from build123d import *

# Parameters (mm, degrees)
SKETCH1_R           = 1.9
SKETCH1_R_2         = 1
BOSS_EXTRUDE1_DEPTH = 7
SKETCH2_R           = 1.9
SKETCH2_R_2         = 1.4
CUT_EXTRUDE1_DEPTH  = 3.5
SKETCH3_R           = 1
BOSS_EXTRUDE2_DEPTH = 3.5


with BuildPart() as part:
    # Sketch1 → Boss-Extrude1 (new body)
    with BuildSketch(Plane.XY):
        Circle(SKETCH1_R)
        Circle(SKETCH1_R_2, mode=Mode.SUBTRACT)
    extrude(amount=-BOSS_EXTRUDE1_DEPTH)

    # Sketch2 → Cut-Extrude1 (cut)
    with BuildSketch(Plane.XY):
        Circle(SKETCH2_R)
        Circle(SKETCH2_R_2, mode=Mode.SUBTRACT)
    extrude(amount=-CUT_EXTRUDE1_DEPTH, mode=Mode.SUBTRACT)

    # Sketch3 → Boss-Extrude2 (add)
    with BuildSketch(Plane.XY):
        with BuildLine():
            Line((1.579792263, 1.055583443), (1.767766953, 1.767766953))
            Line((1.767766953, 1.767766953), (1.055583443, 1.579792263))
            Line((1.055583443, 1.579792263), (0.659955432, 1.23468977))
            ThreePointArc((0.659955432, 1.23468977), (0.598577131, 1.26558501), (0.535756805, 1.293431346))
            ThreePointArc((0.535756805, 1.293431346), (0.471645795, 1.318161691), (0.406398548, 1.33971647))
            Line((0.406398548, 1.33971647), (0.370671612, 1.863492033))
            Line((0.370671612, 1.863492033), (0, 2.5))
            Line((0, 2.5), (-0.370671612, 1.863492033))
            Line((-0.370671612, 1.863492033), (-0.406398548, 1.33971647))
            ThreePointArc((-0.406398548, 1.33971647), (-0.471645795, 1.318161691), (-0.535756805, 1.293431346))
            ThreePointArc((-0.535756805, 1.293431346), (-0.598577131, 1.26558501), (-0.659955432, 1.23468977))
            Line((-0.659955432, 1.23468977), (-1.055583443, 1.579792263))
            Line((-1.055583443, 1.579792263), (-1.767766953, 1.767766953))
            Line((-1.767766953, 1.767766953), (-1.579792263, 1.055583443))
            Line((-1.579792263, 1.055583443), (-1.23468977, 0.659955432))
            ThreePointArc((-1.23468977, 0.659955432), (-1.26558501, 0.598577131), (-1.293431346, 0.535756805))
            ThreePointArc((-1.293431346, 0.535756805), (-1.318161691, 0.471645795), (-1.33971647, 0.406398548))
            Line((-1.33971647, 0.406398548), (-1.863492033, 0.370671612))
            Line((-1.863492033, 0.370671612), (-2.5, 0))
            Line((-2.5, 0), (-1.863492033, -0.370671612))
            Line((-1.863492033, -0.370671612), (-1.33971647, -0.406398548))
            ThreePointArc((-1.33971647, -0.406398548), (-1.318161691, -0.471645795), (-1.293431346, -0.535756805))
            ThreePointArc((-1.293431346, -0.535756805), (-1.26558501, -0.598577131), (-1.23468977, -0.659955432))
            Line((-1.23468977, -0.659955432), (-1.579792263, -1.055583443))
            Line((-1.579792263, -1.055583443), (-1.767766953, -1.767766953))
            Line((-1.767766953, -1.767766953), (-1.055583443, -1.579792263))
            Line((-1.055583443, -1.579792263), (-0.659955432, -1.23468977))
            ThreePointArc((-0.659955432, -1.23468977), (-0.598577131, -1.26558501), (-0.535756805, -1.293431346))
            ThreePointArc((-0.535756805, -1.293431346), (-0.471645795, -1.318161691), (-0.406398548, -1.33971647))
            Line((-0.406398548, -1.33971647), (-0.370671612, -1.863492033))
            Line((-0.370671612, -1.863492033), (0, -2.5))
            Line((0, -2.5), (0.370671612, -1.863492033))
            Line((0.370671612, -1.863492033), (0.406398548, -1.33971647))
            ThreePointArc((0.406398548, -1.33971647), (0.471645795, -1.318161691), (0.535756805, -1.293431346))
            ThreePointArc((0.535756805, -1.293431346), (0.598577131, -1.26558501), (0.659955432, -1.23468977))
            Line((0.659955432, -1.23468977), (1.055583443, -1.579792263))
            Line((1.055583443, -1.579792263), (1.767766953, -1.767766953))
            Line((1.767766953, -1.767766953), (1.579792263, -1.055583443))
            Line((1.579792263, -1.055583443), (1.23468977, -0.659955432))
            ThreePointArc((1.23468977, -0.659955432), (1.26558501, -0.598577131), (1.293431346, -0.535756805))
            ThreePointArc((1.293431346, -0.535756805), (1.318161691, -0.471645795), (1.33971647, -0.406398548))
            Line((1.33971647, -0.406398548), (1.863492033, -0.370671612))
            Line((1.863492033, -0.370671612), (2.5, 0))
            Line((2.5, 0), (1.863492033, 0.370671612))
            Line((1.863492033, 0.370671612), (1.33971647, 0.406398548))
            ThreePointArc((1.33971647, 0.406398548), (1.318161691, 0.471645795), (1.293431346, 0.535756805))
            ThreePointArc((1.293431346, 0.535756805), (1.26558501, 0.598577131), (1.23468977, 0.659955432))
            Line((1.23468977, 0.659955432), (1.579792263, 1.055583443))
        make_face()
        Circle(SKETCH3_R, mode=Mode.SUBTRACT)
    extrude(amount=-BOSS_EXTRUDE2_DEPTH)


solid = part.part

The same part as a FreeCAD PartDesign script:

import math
import FreeCAD as App
import Part
import Sketcher
Q = App.Units.Quantity

doc = App.newDocument("Part")
body = doc.addObject("PartDesign::Body", "Body")

# Sketch on XY plane
sketch1 = body.newObject("Sketcher::SketchObject", "Sketch")
sketch1.AttachmentSupport = (doc.getObject("XY_Plane"), [""])
sketch1.MapMode = "FlatFace"
sketch1.addGeometry(Part.Circle(App.Vector(0, 0, 0), App.Vector(0, 0, 1), 1.9), False)
sketch1.addGeometry(Part.Circle(App.Vector(0, 0, 0), App.Vector(0, 0, 1), 1), False)
sketch1.addConstraint(Sketcher.Constraint("Coincident", 0, 3, -1, 1))
sketch1.addConstraint(Sketcher.Constraint("Coincident", 1, 3, -1, 1))
sketch1.addConstraint(Sketcher.Constraint("Diameter", 1, Q("2 mm")))
sketch1.addConstraint(Sketcher.Constraint("Diameter", 0, Q("3.8 mm")))
pad1 = body.newObject("PartDesign::Pad", "Pad")
pad1.Profile = sketch1
pad1.Length = 7
pad1.Reversed = True

# Sketch on XY plane
sketch2 = body.newObject("Sketcher::SketchObject", "Sketch001")
sketch2.AttachmentSupport = (doc.getObject("XY_Plane"), [""])
sketch2.MapMode = "FlatFace"
sketch2.addGeometry(Part.Circle(App.Vector(0, 0, 0), App.Vector(0, 0, 1), 1.9), False)
sketch2.addGeometry(Part.Circle(App.Vector(0, 0, 0), App.Vector(0, 0, 1), 1.4), False)
sketch2.addConstraint(Sketcher.Constraint("Coincident", 0, 3, -1, 1))
sketch2.addConstraint(Sketcher.Constraint("Coincident", 1, 3, -1, 1))
sketch2.addConstraint(Sketcher.Constraint("Diameter", 0, Q("3.8 mm")))
sketch2.addConstraint(Sketcher.Constraint("Diameter", 1, Q("2.8 mm")))
pocket1 = body.newObject("PartDesign::Pocket", "Pocket")
pocket1.Profile = sketch2
pocket1.Length = 3.5

# Sketch on XY plane
sketch3 = body.newObject("Sketcher::SketchObject", "Sketch002")
sketch3.AttachmentSupport = (doc.getObject("XY_Plane"), [""])
sketch3.MapMode = "FlatFace"
sketch3.addGeometry(Part.LineSegment(App.Vector(1.58, 1.06, 0), App.Vector(1.77, 1.77, 0)), False)
sketch3.addGeometry(Part.LineSegment(App.Vector(1.77, 1.77, 0), App.Vector(1.06, 1.58, 0)), False)
sketch3.addGeometry(Part.LineSegment(App.Vector(1.06, 1.58, 0), App.Vector(0.66, 1.23, 0)), False)
sketch3.addGeometry(Part.ArcOfCircle(Part.Circle(App.Vector(0, 0, 0), App.Vector(0, 0, 1), 1.4), math.radians(61.88), math.radians(67.5)), False)
sketch3.addGeometry(Part.ArcOfCircle(Part.Circle(App.Vector(0, 0, 0), App.Vector(0, 0, 1), 1.4), math.radians(67.5), math.radians(73.12)), False)
sketch3.addGeometry(Part.LineSegment(App.Vector(0.41, 1.34, 0), App.Vector(0.37, 1.86, 0)), False)
sketch3.addGeometry(Part.LineSegment(App.Vector(0.37, 1.86, 0), App.Vector(0, 2.5, 0)), False)
sketch3.addGeometry(Part.LineSegment(App.Vector(0, 2.5, 0), App.Vector(-0.37, 1.86, 0)), False)
sketch3.addGeometry(Part.LineSegment(App.Vector(-0.37, 1.86, 0), App.Vector(-0.41, 1.34, 0)), False)
sketch3.addGeometry(Part.ArcOfCircle(Part.Circle(App.Vector(0, 0, 0), App.Vector(0, 0, 1), 1.4), math.radians(106.88), math.radians(112.5)), False)
sketch3.addGeometry(Part.ArcOfCircle(Part.Circle(App.Vector(0, 0, 0), App.Vector(0, 0, 1), 1.4), math.radians(112.5), math.radians(118.12)), False)
sketch3.addGeometry(Part.LineSegment(App.Vector(-0.66, 1.23, 0), App.Vector(-1.06, 1.58, 0)), False)
sketch3.addGeometry(Part.LineSegment(App.Vector(-1.06, 1.58, 0), App.Vector(-1.77, 1.77, 0)), False)
sketch3.addGeometry(Part.LineSegment(App.Vector(-1.77, 1.77, 0), App.Vector(-1.58, 1.06, 0)), False)
sketch3.addGeometry(Part.LineSegment(App.Vector(-1.58, 1.06, 0), App.Vector(-1.23, 0.66, 0)), False)
sketch3.addGeometry(Part.ArcOfCircle(Part.Circle(App.Vector(0, 0, 0), App.Vector(0, 0, 1), 1.4), math.radians(151.88), math.radians(157.5)), False)
sketch3.addGeometry(Part.ArcOfCircle(Part.Circle(App.Vector(0, 0, 0), App.Vector(0, 0, 1), 1.4), math.radians(157.5), math.radians(163.12)), False)
sketch3.addGeometry(Part.LineSegment(App.Vector(-1.34, 0.41, 0), App.Vector(-1.86, 0.37, 0)), False)
sketch3.addGeometry(Part.LineSegment(App.Vector(-1.86, 0.37, 0), App.Vector(-2.5, 0, 0)), False)
sketch3.addGeometry(Part.LineSegment(App.Vector(-2.5, 0, 0), App.Vector(-1.86, -0.37, 0)), False)
sketch3.addGeometry(Part.LineSegment(App.Vector(-1.86, -0.37, 0), App.Vector(-1.34, -0.41, 0)), False)
sketch3.addGeometry(Part.ArcOfCircle(Part.Circle(App.Vector(0, 0, 0), App.Vector(0, 0, 1), 1.4), math.radians(-163.12), math.radians(-157.5)), False)
sketch3.addGeometry(Part.ArcOfCircle(Part.Circle(App.Vector(0, 0, 0), App.Vector(0, 0, 1), 1.4), math.radians(-157.5), math.radians(-151.88)), False)
sketch3.addGeometry(Part.LineSegment(App.Vector(-1.23, -0.66, 0), App.Vector(-1.58, -1.06, 0)), False)
sketch3.addGeometry(Part.LineSegment(App.Vector(-1.58, -1.06, 0), App.Vector(-1.77, -1.77, 0)), False)
sketch3.addGeometry(Part.LineSegment(App.Vector(-1.77, -1.77, 0), App.Vector(-1.06, -1.58, 0)), False)
sketch3.addGeometry(Part.LineSegment(App.Vector(-1.06, -1.58, 0), App.Vector(-0.66, -1.23, 0)), False)
sketch3.addGeometry(Part.ArcOfCircle(Part.Circle(App.Vector(0, 0, 0), App.Vector(0, 0, 1), 1.4), math.radians(-118.12), math.radians(-112.5)), False)
sketch3.addGeometry(Part.ArcOfCircle(Part.Circle(App.Vector(0, 0, 0), App.Vector(0, 0, 1), 1.4), math.radians(-112.5), math.radians(-106.88)), False)
sketch3.addGeometry(Part.LineSegment(App.Vector(-0.41, -1.34, 0), App.Vector(-0.37, -1.86, 0)), False)
sketch3.addGeometry(Part.LineSegment(App.Vector(-0.37, -1.86, 0), App.Vector(0, -2.5, 0)), False)
sketch3.addGeometry(Part.LineSegment(App.Vector(0, -2.5, 0), App.Vector(0.37, -1.86, 0)), False)
sketch3.addGeometry(Part.LineSegment(App.Vector(0.37, -1.86, 0), App.Vector(0.41, -1.34, 0)), False)
sketch3.addGeometry(Part.ArcOfCircle(Part.Circle(App.Vector(0, 0, 0), App.Vector(0, 0, 1), 1.4), math.radians(-73.12), math.radians(-67.5)), False)
sketch3.addGeometry(Part.ArcOfCircle(Part.Circle(App.Vector(0, 0, 0), App.Vector(0, 0, 1), 1.4), math.radians(-67.5), math.radians(-61.88)), False)
sketch3.addGeometry(Part.LineSegment(App.Vector(0.66, -1.23, 0), App.Vector(1.06, -1.58, 0)), False)
sketch3.addGeometry(Part.LineSegment(App.Vector(1.06, -1.58, 0), App.Vector(1.77, -1.77, 0)), False)
sketch3.addGeometry(Part.LineSegment(App.Vector(1.77, -1.77, 0), App.Vector(1.58, -1.06, 0)), False)
sketch3.addGeometry(Part.LineSegment(App.Vector(1.58, -1.06, 0), App.Vector(1.23, -0.66, 0)), False)
sketch3.addGeometry(Part.ArcOfCircle(Part.Circle(App.Vector(0, 0, 0), App.Vector(0, 0, 1), 1.4), math.radians(-28.12), math.radians(-22.5)), False)
sketch3.addGeometry(Part.ArcOfCircle(Part.Circle(App.Vector(0, 0, 0), App.Vector(0, 0, 1), 1.4), math.radians(-22.5), math.radians(-16.88)), False)
sketch3.addGeometry(Part.LineSegment(App.Vector(1.34, -0.41, 0), App.Vector(1.86, -0.37, 0)), False)
sketch3.addGeometry(Part.LineSegment(App.Vector(1.86, -0.37, 0), App.Vector(2.5, 0, 0)), False)
sketch3.addGeometry(Part.LineSegment(App.Vector(2.5, 0, 0), App.Vector(1.86, 0.37, 0)), False)
sketch3.addGeometry(Part.LineSegment(App.Vector(1.86, 0.37, 0), App.Vector(1.34, 0.41, 0)), False)
sketch3.addGeometry(Part.ArcOfCircle(Part.Circle(App.Vector(0, 0, 0), App.Vector(0, 0, 1), 1.4), math.radians(16.88), math.radians(22.5)), False)
sketch3.addGeometry(Part.ArcOfCircle(Part.Circle(App.Vector(0, 0, 0), App.Vector(0, 0, 1), 1.4), math.radians(22.5), math.radians(28.12)), False)
sketch3.addGeometry(Part.LineSegment(App.Vector(1.23, 0.66, 0), App.Vector(1.58, 1.06, 0)), False)
sketch3.addGeometry(Part.Circle(App.Vector(0, 0, 0), App.Vector(0, 0, 1), 1), False)
sketch3.addConstraint(Sketcher.Constraint("Coincident", 0, 2, 1, 1))
sketch3.addConstraint(Sketcher.Constraint("Coincident", 1, 2, 2, 1))
sketch3.addConstraint(Sketcher.Constraint("Coincident", 2, 2, 3, 1))
sketch3.addConstraint(Sketcher.Constraint("Tangent", 3, 2, 4, 1))
sketch3.addConstraint(Sketcher.Constraint("Coincident", 4, 2, 5, 1))
sketch3.addConstraint(Sketcher.Constraint("Coincident", 5, 2, 6, 1))
sketch3.addConstraint(Sketcher.Constraint("Coincident", 6, 2, 7, 1))
sketch3.addConstraint(Sketcher.Constraint("Coincident", 7, 2, 8, 1))
sketch3.addConstraint(Sketcher.Constraint("Coincident", 8, 2, 9, 1))
sketch3.addConstraint(Sketcher.Constraint("Tangent", 9, 2, 10, 1))
sketch3.addConstraint(Sketcher.Constraint("Coincident", 10, 2, 11, 1))
sketch3.addConstraint(Sketcher.Constraint("Coincident", 11, 2, 12, 1))
sketch3.addConstraint(Sketcher.Constraint("Coincident", 12, 2, 13, 1))
sketch3.addConstraint(Sketcher.Constraint("Coincident", 13, 2, 14, 1))
sketch3.addConstraint(Sketcher.Constraint("Coincident", 14, 2, 15, 1))
sketch3.addConstraint(Sketcher.Constraint("Tangent", 15, 2, 16, 1))
sketch3.addConstraint(Sketcher.Constraint("Coincident", 16, 2, 17, 1))
sketch3.addConstraint(Sketcher.Constraint("Coincident", 17, 2, 18, 1))
sketch3.addConstraint(Sketcher.Constraint("Coincident", 18, 2, 19, 1))
sketch3.addConstraint(Sketcher.Constraint("Coincident", 19, 2, 20, 1))
sketch3.addConstraint(Sketcher.Constraint("Coincident", 20, 2, 21, 1))
sketch3.addConstraint(Sketcher.Constraint("Tangent", 21, 2, 22, 1))
sketch3.addConstraint(Sketcher.Constraint("Coincident", 22, 2, 23, 1))
sketch3.addConstraint(Sketcher.Constraint("Coincident", 23, 2, 24, 1))
sketch3.addConstraint(Sketcher.Constraint("Coincident", 24, 2, 25, 1))
sketch3.addConstraint(Sketcher.Constraint("Coincident", 25, 2, 26, 1))
sketch3.addConstraint(Sketcher.Constraint("Coincident", 26, 2, 27, 1))
sketch3.addConstraint(Sketcher.Constraint("Tangent", 27, 2, 28, 1))
sketch3.addConstraint(Sketcher.Constraint("Coincident", 28, 2, 29, 1))
sketch3.addConstraint(Sketcher.Constraint("Coincident", 29, 2, 30, 1))
sketch3.addConstraint(Sketcher.Constraint("Coincident", 30, 2, 31, 1))
sketch3.addConstraint(Sketcher.Constraint("Coincident", 31, 2, 32, 1))
sketch3.addConstraint(Sketcher.Constraint("Coincident", 32, 2, 33, 1))
sketch3.addConstraint(Sketcher.Constraint("Tangent", 33, 2, 34, 1))
sketch3.addConstraint(Sketcher.Constraint("Coincident", 34, 2, 35, 1))
sketch3.addConstraint(Sketcher.Constraint("Coincident", 35, 2, 36, 1))
sketch3.addConstraint(Sketcher.Constraint("Coincident", 36, 2, 37, 1))
sketch3.addConstraint(Sketcher.Constraint("Coincident", 37, 2, 38, 1))
sketch3.addConstraint(Sketcher.Constraint("Coincident", 38, 2, 39, 1))
sketch3.addConstraint(Sketcher.Constraint("Tangent", 39, 2, 40, 1))
sketch3.addConstraint(Sketcher.Constraint("Coincident", 40, 2, 41, 1))
sketch3.addConstraint(Sketcher.Constraint("Coincident", 41, 2, 42, 1))
sketch3.addConstraint(Sketcher.Constraint("Coincident", 42, 2, 43, 1))
sketch3.addConstraint(Sketcher.Constraint("Coincident", 43, 2, 44, 1))
sketch3.addConstraint(Sketcher.Constraint("Coincident", 44, 2, 45, 1))
sketch3.addConstraint(Sketcher.Constraint("Tangent", 45, 2, 46, 1))
sketch3.addConstraint(Sketcher.Constraint("Coincident", 46, 2, 47, 1))
sketch3.addConstraint(Sketcher.Constraint("Coincident", 47, 2, 0, 1))
sketch3.addConstraint(Sketcher.Constraint("Coincident", 3, 3, -1, 1))
sketch3.addConstraint(Sketcher.Constraint("Coincident", 9, 3, -1, 1))
sketch3.addConstraint(Sketcher.Constraint("Coincident", 15, 3, -1, 1))
sketch3.addConstraint(Sketcher.Constraint("Coincident", 21, 3, -1, 1))
sketch3.addConstraint(Sketcher.Constraint("Coincident", 27, 3, -1, 1))
sketch3.addConstraint(Sketcher.Constraint("Coincident", 33, 3, -1, 1))
sketch3.addConstraint(Sketcher.Constraint("Coincident", 39, 3, -1, 1))
sketch3.addConstraint(Sketcher.Constraint("Coincident", 45, 3, -1, 1))
sketch3.addConstraint(Sketcher.Constraint("Coincident", 48, 3, -1, 1))
sketch3.addConstraint(Sketcher.Constraint("Equal", 3, 4))
sketch3.addConstraint(Sketcher.Constraint("Equal", 4, 9))
sketch3.addConstraint(Sketcher.Constraint("Equal", 9, 10))
sketch3.addConstraint(Sketcher.Constraint("Equal", 10, 15))
sketch3.addConstraint(Sketcher.Constraint("Equal", 15, 16))
sketch3.addConstraint(Sketcher.Constraint("Equal", 16, 21))
sketch3.addConstraint(Sketcher.Constraint("Equal", 21, 22))
sketch3.addConstraint(Sketcher.Constraint("Equal", 22, 27))
sketch3.addConstraint(Sketcher.Constraint("Equal", 27, 28))
sketch3.addConstraint(Sketcher.Constraint("Equal", 28, 33))
sketch3.addConstraint(Sketcher.Constraint("Equal", 33, 34))
sketch3.addConstraint(Sketcher.Constraint("Equal", 34, 39))
sketch3.addConstraint(Sketcher.Constraint("Equal", 39, 40))
sketch3.addConstraint(Sketcher.Constraint("Equal", 40, 45))
sketch3.addConstraint(Sketcher.Constraint("Equal", 45, 46))
sketch3.addConstraint(Sketcher.Constraint("Symmetric", 0, 2, 24, 2, -1, 1))
sketch3.addConstraint(Sketcher.Constraint("Symmetric", 1, 2, 25, 2, -1, 1))
sketch3.addConstraint(Sketcher.Constraint("Symmetric", 5, 2, 29, 2, -1, 1))
sketch3.addConstraint(Sketcher.Constraint("Symmetric", 6, 2, 30, 2, -1, 1))
sketch3.addConstraint(Sketcher.Constraint("Symmetric", 7, 2, 31, 2, -1, 1))
sketch3.addConstraint(Sketcher.Constraint("Symmetric", 11, 2, 35, 2, -1, 1))
sketch3.addConstraint(Sketcher.Constraint("Symmetric", 12, 2, 36, 2, -1, 1))
sketch3.addConstraint(Sketcher.Constraint("Symmetric", 13, 2, 37, 2, -1, 1))
sketch3.addConstraint(Sketcher.Constraint("Symmetric", 17, 2, 41, 2, -1, 1))
sketch3.addConstraint(Sketcher.Constraint("Symmetric", 18, 2, 42, 2, -1, 1))
sketch3.addConstraint(Sketcher.Constraint("Symmetric", 19, 2, 43, 2, -1, 1))
sketch3.addConstraint(Sketcher.Constraint("Symmetric", 23, 2, 47, 2, -1, 1))
sketch3.addConstraint(Sketcher.Constraint("Symmetric", 5, 2, 7, 2, -2))
sketch3.addConstraint(Sketcher.Constraint("Symmetric", 1, 2, 11, 2, -2))
sketch3.addConstraint(Sketcher.Constraint("Symmetric", 0, 2, 12, 2, -2))
sketch3.addConstraint(Sketcher.Constraint("Symmetric", 23, 2, 37, 2, -2))
sketch3.addConstraint(Sketcher.Constraint("Symmetric", 19, 2, 41, 2, -2))
sketch3.addConstraint(Sketcher.Constraint("PointOnObject", 6, 2, -2))
sketch3.addConstraint(Sketcher.Constraint("PointOnObject", 18, 2, -1))
sketch3.addConstraint(Sketcher.Constraint("Perpendicular", 0, 12))
sketch3.addConstraint(Sketcher.Constraint("Perpendicular", 2, 14))
sketch3.addConstraint(Sketcher.Constraint("Perpendicular", 5, 17))
sketch3.addConstraint(Sketcher.Constraint("Perpendicular", 6, 18))
sketch3.addConstraint(Sketcher.Constraint("Perpendicular", 8, 20))
sketch3.addConstraint(Sketcher.Constraint("Perpendicular", 11, 23))
sketch3.addConstraint(Sketcher.Constraint("Perpendicular", 14, 26))
sketch3.addConstraint(Sketcher.Constraint("Perpendicular", 17, 29))
sketch3.addConstraint(Sketcher.Constraint("Perpendicular", 20, 32))
sketch3.addConstraint(Sketcher.Constraint("Perpendicular", 23, 35))
sketch3.addConstraint(Sketcher.Constraint("Perpendicular", 26, 38))
sketch3.addConstraint(Sketcher.Constraint("Perpendicular", 29, 41))
sketch3.addConstraint(Sketcher.Constraint("Perpendicular", 32, 44))
sketch3.addConstraint(Sketcher.Constraint("Perpendicular", 35, 47))
sketch3.addConstraint(Sketcher.Constraint("Horizontal", 4, 2, 8, 2))
sketch3.addConstraint(Sketcher.Constraint("Horizontal", 3, 2, 9, 2))
sketch3.addConstraint(Sketcher.Constraint("Horizontal", 2, 2, 10, 2))
sketch3.addConstraint(Sketcher.Constraint("Horizontal", 27, 2, 33, 2))
sketch3.addConstraint(Sketcher.Constraint("Horizontal", 21, 2, 39, 2))
sketch3.addConstraint(Sketcher.Constraint("Horizontal", 15, 2, 45, 2))
sketch3.addConstraint(Sketcher.Constraint("Vertical", 15, 2, 21, 2))
sketch3.addConstraint(Sketcher.Constraint("Vertical", 9, 2, 27, 2))
sketch3.addConstraint(Sketcher.Constraint("Equal", 0, 1))
sketch3.addConstraint(Sketcher.Constraint("Equal", 2, 5))
sketch3.addConstraint(Sketcher.Constraint("Equal", 1, 6))
sketch3.addConstraint(Sketcher.Constraint("Equal", 11, 14))
sketch3.addConstraint(Sketcher.Constraint("Equal", 14, 17))
sketch3.addConstraint(Sketcher.Constraint("Equal", 13, 18))
sketch3.addConstraint(Sketcher.Constraint("Diameter", 48, Q("2 mm")))
sketch3.addConstraint(Sketcher.Constraint("Radius", 3, Q("1.4 mm")))
sketch3.addConstraint(Sketcher.Constraint("DistanceY", -1, 1, 6, 2, Q("2.5 mm")))
sketch3.addConstraint(Sketcher.Constraint("DistanceX", -1, 1, 4, 2, Q("0.406399 mm")))
sketch3.addConstraint(Sketcher.Constraint("DistanceY", -1, 1, 2, 2, Q("1.23469 mm")))
sketch3.addConstraint(Sketcher.Constraint("DistanceY", -1, 1, 3, 2, Q("1.293431 mm")))
sketch3.addConstraint(Sketcher.Constraint("DistanceX", -1, 1, 5, 2, Q("0.370672 mm")))
sketch3.addConstraint(Sketcher.Constraint("DistanceX", 15, 2, -1, 1, Q("1.293431 mm")))
sketch3.addConstraint(Sketcher.Constraint("Distance", 0, Q("0.736573 mm")))
sketch3.addConstraint(Sketcher.Constraint("DistanceX", -1, 1, 0, 2, Q("1.767767 mm")))
pad2 = body.newObject("PartDesign::Pad", "Pad001")
pad2.Profile = sketch3
pad2.Length = 3.5
pad2.Reversed = True

doc.recompute()
